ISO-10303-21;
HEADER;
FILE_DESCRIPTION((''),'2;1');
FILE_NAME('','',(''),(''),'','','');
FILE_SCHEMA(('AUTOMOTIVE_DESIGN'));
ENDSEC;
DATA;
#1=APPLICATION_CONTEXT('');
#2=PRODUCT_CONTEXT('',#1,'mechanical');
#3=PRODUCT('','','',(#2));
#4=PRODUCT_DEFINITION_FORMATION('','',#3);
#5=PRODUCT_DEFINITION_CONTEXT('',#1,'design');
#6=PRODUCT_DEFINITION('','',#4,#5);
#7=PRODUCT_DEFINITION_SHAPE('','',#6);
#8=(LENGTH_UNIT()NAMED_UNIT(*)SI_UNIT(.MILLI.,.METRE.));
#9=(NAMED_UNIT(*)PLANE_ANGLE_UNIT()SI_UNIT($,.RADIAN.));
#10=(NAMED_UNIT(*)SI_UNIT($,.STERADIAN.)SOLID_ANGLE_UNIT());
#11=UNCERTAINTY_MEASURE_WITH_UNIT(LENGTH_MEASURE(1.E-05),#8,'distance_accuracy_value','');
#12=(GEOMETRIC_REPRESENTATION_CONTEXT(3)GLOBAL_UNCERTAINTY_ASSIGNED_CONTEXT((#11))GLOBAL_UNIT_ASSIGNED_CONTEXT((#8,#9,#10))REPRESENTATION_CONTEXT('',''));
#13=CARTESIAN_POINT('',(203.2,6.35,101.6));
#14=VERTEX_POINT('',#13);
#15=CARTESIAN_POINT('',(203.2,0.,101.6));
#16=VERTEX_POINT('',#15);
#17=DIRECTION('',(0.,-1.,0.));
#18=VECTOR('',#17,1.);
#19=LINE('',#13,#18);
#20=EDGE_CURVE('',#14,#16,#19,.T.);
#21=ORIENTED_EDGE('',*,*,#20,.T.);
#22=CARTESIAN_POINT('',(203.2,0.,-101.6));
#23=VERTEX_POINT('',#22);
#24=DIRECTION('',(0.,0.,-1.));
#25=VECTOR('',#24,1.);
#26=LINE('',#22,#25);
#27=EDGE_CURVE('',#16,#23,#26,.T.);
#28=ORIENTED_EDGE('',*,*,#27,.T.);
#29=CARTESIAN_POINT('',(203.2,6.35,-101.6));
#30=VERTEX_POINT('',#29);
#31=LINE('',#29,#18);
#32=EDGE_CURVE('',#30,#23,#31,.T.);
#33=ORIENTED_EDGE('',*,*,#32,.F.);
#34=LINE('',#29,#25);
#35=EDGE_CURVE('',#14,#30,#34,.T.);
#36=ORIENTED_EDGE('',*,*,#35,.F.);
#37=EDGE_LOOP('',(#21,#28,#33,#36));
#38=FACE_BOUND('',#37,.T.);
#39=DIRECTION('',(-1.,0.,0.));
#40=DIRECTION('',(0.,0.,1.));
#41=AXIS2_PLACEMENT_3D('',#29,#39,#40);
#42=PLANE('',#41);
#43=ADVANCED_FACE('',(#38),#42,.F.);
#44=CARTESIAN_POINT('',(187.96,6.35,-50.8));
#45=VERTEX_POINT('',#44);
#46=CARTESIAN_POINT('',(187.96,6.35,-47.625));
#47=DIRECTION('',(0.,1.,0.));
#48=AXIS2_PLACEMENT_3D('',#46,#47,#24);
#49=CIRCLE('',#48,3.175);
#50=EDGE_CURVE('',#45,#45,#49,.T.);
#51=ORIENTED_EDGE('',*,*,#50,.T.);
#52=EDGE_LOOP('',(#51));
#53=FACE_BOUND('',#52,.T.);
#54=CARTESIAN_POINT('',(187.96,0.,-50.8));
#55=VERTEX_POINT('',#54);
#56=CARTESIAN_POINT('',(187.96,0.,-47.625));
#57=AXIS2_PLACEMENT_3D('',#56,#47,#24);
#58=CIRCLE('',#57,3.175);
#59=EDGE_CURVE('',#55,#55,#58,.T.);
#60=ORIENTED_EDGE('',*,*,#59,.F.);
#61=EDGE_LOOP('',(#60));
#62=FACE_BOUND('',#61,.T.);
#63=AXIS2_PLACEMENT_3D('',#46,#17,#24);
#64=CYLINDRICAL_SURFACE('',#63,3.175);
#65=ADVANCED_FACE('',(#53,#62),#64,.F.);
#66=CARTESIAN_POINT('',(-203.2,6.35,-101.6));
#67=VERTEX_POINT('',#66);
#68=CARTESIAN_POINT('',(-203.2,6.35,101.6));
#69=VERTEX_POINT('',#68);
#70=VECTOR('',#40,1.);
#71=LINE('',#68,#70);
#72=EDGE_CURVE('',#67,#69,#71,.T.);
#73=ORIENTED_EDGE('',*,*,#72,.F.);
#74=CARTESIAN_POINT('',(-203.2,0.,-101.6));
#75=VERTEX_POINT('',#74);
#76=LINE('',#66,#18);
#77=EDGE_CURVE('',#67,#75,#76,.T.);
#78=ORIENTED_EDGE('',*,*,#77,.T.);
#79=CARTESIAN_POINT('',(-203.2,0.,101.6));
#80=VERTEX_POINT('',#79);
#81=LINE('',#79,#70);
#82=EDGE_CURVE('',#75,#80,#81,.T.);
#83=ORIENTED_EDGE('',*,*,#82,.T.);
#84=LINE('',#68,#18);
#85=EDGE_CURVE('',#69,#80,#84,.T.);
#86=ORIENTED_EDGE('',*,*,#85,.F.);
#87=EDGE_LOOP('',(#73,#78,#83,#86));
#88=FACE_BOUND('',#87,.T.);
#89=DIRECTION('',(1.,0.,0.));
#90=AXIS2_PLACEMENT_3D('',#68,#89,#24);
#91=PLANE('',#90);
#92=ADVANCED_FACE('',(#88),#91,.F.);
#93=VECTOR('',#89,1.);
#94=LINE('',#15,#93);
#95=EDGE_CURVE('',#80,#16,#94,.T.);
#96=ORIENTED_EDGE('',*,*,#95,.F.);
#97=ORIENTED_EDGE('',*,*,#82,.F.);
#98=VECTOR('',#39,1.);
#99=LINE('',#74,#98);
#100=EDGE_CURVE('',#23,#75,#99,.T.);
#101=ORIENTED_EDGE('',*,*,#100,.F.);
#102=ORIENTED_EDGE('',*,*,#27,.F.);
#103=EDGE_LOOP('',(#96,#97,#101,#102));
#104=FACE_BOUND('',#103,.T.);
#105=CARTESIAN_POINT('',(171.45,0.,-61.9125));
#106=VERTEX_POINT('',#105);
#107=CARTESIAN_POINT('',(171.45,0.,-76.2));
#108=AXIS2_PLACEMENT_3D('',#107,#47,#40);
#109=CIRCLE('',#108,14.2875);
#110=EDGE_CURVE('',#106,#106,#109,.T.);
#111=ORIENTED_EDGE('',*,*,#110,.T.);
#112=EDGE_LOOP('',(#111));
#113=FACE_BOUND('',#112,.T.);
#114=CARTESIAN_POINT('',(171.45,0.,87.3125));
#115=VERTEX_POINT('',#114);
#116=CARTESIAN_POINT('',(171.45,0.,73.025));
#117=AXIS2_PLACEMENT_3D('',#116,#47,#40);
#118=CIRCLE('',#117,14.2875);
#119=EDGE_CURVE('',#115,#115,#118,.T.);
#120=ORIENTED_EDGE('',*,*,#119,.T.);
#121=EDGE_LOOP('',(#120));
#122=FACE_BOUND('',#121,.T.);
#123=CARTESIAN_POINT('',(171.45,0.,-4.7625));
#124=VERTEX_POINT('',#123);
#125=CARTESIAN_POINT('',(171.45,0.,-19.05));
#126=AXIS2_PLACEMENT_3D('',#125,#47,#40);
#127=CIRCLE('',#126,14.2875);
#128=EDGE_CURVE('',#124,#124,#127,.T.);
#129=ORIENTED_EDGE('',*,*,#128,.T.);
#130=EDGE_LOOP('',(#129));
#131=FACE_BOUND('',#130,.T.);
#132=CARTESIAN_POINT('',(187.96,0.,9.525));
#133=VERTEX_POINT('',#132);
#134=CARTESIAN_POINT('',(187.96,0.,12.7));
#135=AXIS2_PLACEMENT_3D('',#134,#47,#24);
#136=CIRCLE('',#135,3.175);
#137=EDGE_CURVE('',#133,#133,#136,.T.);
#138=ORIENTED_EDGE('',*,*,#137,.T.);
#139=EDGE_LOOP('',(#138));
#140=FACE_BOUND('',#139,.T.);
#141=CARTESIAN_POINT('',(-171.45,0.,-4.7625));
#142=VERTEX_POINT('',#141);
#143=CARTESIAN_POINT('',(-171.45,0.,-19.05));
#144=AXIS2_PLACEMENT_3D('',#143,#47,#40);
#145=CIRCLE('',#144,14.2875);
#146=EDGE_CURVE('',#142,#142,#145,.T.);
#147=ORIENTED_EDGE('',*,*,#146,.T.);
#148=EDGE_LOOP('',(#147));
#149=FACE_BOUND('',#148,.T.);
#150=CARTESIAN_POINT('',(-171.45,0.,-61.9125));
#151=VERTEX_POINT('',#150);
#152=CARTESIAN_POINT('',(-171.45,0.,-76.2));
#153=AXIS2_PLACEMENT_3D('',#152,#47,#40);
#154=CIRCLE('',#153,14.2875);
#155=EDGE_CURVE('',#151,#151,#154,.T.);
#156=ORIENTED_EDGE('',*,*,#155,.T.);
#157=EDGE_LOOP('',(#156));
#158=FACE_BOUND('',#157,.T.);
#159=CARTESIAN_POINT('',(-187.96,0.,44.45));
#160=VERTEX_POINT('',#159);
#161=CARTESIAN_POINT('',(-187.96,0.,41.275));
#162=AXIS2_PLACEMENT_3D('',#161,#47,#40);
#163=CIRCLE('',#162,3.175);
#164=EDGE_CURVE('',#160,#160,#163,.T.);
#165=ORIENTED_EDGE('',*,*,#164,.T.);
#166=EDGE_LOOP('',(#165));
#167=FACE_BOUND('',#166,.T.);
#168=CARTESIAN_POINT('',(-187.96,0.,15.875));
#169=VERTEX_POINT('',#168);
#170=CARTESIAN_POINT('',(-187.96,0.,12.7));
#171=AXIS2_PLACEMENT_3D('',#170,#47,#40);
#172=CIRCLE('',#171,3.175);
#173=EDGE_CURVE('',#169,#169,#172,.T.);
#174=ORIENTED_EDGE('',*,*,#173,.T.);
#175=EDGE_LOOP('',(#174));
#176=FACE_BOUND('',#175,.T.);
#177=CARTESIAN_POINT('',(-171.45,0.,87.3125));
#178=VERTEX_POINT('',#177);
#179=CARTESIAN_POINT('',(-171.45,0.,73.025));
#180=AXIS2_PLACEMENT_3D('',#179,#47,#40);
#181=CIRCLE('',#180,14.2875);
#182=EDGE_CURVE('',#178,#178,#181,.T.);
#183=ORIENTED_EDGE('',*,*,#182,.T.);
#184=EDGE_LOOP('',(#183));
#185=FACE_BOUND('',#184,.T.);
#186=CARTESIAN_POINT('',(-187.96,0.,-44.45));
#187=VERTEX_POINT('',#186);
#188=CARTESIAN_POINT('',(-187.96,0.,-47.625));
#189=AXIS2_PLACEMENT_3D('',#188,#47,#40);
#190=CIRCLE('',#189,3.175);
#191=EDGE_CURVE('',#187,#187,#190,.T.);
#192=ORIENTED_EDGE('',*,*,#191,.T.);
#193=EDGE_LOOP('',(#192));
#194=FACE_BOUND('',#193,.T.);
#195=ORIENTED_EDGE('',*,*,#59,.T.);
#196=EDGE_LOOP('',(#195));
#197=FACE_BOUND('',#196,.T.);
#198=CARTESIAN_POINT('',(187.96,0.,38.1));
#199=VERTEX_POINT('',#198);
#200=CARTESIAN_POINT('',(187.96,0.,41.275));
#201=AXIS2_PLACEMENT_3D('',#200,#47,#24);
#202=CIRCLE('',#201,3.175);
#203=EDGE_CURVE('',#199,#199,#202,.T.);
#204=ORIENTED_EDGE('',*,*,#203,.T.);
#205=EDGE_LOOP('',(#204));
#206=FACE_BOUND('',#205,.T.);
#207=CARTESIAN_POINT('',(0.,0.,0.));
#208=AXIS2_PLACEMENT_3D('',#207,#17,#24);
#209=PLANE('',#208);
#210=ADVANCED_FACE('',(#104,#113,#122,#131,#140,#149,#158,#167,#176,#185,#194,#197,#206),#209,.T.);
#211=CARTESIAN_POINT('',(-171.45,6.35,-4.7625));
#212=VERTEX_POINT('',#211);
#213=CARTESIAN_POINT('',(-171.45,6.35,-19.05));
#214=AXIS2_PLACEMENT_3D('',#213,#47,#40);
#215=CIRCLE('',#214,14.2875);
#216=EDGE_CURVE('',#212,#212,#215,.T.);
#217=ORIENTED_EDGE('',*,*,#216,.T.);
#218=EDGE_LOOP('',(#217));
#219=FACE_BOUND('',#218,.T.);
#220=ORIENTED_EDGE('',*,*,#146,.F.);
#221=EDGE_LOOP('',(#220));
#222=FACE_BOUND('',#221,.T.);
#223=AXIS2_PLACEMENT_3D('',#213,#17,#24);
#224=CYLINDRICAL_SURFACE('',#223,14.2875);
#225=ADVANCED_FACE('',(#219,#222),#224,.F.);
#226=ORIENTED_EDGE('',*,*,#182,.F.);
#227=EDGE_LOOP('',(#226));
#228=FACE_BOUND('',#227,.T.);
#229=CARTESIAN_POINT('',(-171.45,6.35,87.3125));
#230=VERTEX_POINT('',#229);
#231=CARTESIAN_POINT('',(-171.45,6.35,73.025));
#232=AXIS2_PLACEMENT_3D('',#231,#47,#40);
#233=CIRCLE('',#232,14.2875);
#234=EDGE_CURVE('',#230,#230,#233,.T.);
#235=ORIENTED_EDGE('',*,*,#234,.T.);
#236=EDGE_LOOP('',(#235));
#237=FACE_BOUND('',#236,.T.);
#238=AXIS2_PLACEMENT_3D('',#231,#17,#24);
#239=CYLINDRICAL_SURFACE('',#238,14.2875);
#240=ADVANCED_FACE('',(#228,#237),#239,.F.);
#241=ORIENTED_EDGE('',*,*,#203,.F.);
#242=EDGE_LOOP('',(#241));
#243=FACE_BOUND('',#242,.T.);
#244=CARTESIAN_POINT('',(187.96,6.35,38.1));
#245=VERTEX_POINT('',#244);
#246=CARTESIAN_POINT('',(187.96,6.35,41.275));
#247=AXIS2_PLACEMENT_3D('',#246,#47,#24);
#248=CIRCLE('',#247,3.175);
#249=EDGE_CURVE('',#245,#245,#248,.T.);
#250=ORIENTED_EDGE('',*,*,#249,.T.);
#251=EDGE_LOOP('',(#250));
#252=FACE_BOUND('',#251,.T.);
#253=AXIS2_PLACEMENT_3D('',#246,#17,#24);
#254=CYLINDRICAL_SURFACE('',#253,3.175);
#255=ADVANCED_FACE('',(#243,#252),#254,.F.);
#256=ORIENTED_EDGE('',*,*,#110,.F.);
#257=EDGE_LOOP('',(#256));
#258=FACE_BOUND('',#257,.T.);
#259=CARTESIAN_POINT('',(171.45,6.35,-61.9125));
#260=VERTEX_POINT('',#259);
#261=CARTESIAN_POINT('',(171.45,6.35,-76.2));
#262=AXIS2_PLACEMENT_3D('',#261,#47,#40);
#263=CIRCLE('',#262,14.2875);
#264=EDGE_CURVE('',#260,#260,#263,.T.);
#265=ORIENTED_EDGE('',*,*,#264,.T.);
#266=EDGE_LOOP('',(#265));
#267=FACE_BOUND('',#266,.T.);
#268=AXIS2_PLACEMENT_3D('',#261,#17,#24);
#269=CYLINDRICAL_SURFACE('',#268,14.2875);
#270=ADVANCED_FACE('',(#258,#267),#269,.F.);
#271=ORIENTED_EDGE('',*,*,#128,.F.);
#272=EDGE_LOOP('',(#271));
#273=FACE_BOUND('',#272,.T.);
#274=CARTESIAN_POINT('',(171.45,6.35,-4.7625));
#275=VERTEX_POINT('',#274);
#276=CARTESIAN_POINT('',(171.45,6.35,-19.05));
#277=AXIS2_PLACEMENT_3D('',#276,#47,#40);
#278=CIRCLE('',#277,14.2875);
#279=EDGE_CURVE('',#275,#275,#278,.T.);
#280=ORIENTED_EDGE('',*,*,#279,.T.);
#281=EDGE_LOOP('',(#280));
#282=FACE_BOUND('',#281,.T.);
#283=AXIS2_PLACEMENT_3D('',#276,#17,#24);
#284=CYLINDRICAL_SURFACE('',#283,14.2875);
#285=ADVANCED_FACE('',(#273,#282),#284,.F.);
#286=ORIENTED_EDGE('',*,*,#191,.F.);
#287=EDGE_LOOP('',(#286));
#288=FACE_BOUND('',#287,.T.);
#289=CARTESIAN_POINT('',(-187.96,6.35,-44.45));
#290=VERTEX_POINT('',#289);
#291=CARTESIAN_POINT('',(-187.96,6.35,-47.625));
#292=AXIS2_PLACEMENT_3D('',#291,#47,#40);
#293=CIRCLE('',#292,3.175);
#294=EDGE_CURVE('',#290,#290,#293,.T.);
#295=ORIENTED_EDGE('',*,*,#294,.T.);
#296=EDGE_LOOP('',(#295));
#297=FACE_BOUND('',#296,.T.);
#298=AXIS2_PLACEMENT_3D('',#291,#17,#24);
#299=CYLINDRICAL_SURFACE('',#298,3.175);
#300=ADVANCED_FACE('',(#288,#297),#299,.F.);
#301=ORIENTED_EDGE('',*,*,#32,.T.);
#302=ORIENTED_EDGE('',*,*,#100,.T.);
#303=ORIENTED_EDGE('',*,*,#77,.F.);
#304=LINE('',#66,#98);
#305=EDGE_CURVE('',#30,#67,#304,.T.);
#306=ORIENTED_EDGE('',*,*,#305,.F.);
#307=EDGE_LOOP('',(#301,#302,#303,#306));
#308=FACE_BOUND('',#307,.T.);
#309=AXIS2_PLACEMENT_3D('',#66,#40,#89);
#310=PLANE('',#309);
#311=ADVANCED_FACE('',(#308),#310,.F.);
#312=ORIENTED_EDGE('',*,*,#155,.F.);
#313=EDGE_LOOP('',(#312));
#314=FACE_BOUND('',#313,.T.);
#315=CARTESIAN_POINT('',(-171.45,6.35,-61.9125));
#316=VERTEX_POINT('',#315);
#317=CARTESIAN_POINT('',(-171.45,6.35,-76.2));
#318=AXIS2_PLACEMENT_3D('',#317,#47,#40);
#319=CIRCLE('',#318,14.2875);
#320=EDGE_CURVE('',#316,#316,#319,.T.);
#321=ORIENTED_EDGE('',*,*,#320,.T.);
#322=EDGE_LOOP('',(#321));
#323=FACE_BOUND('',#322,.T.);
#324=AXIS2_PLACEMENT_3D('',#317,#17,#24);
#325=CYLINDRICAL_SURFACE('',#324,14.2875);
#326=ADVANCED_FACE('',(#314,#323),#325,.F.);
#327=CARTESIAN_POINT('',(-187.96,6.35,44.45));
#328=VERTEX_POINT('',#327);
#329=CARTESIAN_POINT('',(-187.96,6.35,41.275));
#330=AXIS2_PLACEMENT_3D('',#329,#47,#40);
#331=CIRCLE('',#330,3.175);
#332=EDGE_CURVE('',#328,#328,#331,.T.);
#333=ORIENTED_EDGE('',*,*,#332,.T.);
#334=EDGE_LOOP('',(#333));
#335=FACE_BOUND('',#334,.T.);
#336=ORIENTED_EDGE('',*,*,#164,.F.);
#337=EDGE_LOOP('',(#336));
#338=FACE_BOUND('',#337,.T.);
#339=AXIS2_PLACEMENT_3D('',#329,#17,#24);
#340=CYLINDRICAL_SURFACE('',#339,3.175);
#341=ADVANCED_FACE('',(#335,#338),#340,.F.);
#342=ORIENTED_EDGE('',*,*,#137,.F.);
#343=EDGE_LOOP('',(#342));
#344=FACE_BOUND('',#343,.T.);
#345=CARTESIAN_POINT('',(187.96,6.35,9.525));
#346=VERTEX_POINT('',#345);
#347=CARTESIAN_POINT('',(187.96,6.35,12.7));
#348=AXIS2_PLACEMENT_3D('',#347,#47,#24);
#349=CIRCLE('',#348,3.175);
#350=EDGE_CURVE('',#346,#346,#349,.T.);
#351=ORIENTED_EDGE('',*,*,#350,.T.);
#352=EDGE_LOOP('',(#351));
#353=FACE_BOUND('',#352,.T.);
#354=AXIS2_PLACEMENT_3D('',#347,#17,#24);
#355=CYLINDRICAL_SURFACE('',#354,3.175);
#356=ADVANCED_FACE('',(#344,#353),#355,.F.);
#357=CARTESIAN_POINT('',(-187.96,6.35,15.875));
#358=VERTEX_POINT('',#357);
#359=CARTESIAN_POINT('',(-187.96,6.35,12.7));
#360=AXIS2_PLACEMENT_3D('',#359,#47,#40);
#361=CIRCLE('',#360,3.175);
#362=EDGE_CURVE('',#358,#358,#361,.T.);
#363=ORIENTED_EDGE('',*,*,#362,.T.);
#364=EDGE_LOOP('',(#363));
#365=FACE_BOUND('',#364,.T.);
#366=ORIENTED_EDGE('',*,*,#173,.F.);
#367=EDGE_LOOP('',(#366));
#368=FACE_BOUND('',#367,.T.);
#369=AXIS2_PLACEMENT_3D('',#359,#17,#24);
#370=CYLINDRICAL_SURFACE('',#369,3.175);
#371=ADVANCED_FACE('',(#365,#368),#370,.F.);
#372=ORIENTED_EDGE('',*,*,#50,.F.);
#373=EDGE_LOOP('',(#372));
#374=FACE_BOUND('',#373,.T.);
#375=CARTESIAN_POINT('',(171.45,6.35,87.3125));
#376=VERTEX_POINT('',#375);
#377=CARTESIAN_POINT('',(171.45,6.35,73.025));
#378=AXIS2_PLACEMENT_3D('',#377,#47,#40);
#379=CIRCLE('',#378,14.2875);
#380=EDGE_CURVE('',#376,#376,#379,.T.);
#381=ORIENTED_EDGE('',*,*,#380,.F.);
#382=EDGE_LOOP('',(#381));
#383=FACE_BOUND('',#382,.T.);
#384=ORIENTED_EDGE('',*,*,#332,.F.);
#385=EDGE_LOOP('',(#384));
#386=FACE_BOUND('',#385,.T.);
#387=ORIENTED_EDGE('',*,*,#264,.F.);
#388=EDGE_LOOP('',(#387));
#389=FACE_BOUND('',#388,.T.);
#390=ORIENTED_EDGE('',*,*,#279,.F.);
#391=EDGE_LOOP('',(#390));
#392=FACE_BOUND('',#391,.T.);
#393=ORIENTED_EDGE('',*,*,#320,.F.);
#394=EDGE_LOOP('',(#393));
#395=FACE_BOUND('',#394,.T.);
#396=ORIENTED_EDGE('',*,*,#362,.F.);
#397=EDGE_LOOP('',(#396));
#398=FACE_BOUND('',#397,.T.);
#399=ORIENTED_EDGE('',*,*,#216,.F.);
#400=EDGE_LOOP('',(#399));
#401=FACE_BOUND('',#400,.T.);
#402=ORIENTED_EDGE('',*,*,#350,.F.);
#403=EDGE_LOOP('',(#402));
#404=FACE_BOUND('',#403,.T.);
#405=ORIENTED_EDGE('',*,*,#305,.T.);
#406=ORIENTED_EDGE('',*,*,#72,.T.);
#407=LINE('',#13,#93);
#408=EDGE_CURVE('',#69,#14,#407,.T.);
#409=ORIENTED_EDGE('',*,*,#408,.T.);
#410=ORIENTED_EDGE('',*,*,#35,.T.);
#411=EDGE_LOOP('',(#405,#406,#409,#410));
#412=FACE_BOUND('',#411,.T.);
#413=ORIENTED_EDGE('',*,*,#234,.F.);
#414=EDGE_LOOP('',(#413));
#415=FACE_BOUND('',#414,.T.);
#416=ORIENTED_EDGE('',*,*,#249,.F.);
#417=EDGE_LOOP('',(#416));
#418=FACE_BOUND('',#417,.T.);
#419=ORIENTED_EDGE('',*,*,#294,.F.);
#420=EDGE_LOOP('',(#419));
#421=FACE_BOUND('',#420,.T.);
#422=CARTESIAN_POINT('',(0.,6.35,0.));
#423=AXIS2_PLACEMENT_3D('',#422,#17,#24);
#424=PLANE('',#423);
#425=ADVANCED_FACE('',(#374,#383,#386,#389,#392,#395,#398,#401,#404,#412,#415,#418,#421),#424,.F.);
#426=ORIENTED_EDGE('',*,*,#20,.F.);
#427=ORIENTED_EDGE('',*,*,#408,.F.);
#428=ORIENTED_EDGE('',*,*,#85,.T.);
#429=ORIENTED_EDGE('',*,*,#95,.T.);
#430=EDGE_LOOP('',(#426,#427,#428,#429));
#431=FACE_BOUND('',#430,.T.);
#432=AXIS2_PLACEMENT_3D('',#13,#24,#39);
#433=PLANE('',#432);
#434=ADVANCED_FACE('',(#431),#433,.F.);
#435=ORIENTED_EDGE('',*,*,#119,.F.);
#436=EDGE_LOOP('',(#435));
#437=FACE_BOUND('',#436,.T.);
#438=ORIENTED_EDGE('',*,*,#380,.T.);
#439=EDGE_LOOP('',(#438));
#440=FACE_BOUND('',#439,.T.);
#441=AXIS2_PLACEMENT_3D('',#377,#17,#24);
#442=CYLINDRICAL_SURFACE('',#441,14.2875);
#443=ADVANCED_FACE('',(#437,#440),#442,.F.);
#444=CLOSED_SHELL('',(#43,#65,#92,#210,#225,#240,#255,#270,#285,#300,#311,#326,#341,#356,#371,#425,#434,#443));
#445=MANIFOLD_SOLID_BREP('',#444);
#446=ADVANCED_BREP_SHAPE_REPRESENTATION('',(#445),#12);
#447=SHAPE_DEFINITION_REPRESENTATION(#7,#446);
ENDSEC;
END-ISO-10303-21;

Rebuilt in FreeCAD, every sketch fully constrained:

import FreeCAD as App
import Part
import Sketcher
from FreeCAD import Vector
Q = App.Units.Quantity

doc = App.newDocument("Part")
params = doc.addObject("Spreadsheet::Sheet", "Params")
for row, (alias, value) in enumerate([
    ("sketch1_diameter", "0.25 in"),
    ("sketch1_width", "16 in"),
    ("sketch1_height", "8 in"),
    ("sketch1_diameter2", "1.125 in"),
    ("pad1_length", "0.25 in"),
], start=1):
    params.set(f"A{row}", alias)
    params.set(f"B{row}", "=" + value)
    params.setAlias(f"B{row}", alias)

body = doc.addObject("PartDesign::Body", "Body")

# Sketch on XZ plane
sketch1 = body.newObject("Sketcher::SketchObject", "Sketch")
sketch1.AttachmentSupport = (doc.getObject("XZ_Plane"), [""])
sketch1.MapMode = "FlatFace"
sketch1.addGeometry([
    Part.LineSegment(Vector(-203.2, -101.6, 0), Vector(-203.2, 101.6, 0)),  # 0
    Part.LineSegment(Vector(-203.2, 101.6, 0), Vector(203.2, 101.6, 0)),  # 1
    Part.LineSegment(Vector(203.2, 101.6, 0), Vector(203.2, -101.6, 0)),  # 2
    Part.LineSegment(Vector(203.2, -101.6, 0), Vector(-203.2, -101.6, 0)),  # 3
    Part.Circle(Vector(-171.45, 73.025, 0), Vector(0, 0, 1), 14.2875),  # 4
    Part.Circle(Vector(-187.96, 41.275, 0), Vector(0, 0, 1), 3.175),  # 5
    Part.Circle(Vector(-187.96, 12.7, 0), Vector(0, 0, 1), 3.175),  # 6
    Part.Circle(Vector(171.45, 73.025, 0), Vector(0, 0, 1), 14.2875),  # 7
    Part.Circle(Vector(187.96, 41.275, 0), Vector(0, 0, 1), 3.175),  # 8
    Part.Circle(Vector(187.96, 12.7, 0), Vector(0, 0, 1), 3.175),  # 9
    Part.Circle(Vector(-171.45, -19.05, 0), Vector(0, 0, 1), 14.2875),  # 10
    Part.Circle(Vector(-187.96, -47.625, 0), Vector(0, 0, 1), 3.175),  # 11
    Part.Circle(Vector(-171.45, -76.2, 0), Vector(0, 0, 1), 14.2875),  # 12
    Part.Circle(Vector(171.45, -19.05, 0), Vector(0, 0, 1), 14.2875),  # 13
    Part.Circle(Vector(187.96, -47.625, 0), Vector(0, 0, 1), 3.175),  # 14
    Part.Circle(Vector(171.45, -76.2, 0), Vector(0, 0, 1), 14.2875),  # 15
], False)
sketch1.addConstraint([
    Sketcher.Constraint("Coincident", 0, 2, 1, 1),
    Sketcher.Constraint("Coincident", 1, 2, 2, 1),
    Sketcher.Constraint("Coincident", 2, 2, 3, 1),
    Sketcher.Constraint("Coincident", 3, 2, 0, 1),
    Sketcher.Constraint("Vertical", 0),
    Sketcher.Constraint("Horizontal", 1),
    Sketcher.Constraint("Vertical", 2),
    Sketcher.Constraint("Horizontal", 3),
    Sketcher.Constraint("Equal", 5, 6),
    Sketcher.Constraint("Equal", 4, 7),
    Sketcher.Constraint("Equal", 6, 8),
    Sketcher.Constraint("Equal", 8, 9),
    Sketcher.Constraint("Equal", 7, 10),
    Sketcher.Constraint("Equal", 9, 11),
    Sketcher.Constraint("Equal", 10, 12),
    Sketcher.Constraint("Equal", 12, 13),
    Sketcher.Constraint("Equal", 11, 14),
    Sketcher.Constraint("Equal", 13, 15),
    Sketcher.Constraint("Symmetric", 0, 2, 2, 2, -1, 1),
    Sketcher.Constraint("Symmetric", 4, 3, 7, 3, -2),
    Sketcher.Constraint("Symmetric", 5, 3, 8, 3, -2),
    Sketcher.Constraint("Symmetric", 6, 3, 9, 3, -2),
    Sketcher.Constraint("Symmetric", 10, 3, 13, 3, -2),
    Sketcher.Constraint("Symmetric", 11, 3, 14, 3, -2),
    Sketcher.Constraint("Symmetric", 12, 3, 15, 3, -2),
    Sketcher.Constraint("Vertical", 5, 3, 6, 3),
    Sketcher.Constraint("Vertical", 4, 3, 10, 3),
    Sketcher.Constraint("Vertical", 6, 3, 11, 3),
    Sketcher.Constraint("Vertical", 10, 3, 12, 3),
    Sketcher.Constraint("Diameter", 5, Q("0.25 in")),
    Sketcher.Constraint("DistanceX", 1, 1, 1, 2, Q("16 in")),
    Sketcher.Constraint("DistanceY", 0, 1, 0, 2, Q("8 in")),
    Sketcher.Constraint("Diameter", 4, Q("1.125 in")),
    Sketcher.Constraint("DistanceY", 12, 3, -1, 1, Q("3 in")),
    Sketcher.Constraint("DistanceX", 5, 3, -1, 1, Q("7.4 in")),
    Sketcher.Constraint("DistanceY", -1, 1, 6, 3, Q("0.5 in")),
    Sketcher.Constraint("DistanceX", 4, 3, 7, 3, Q("13.5 in")),
    Sketcher.Constraint("DistanceY", 11, 3, 5, 3, Q("3.5 in")),
    Sketcher.Constraint("DistanceY", 10, 3, -1, 1, Q("0.75 in")),
    Sketcher.Constraint("DistanceY", 5, 3, 4, 3, Q("1.25 in")),
    Sketcher.Constraint("DistanceY", -1, 1, 4, 3, Q("2.875 in")),
])
sketch1.setExpression("Constraints[29]", "Params.sketch1_diameter")
sketch1.setExpression("Constraints[30]", "Params.sketch1_width")
sketch1.setExpression("Constraints[31]", "Params.sketch1_height")
sketch1.setExpression("Constraints[32]", "Params.sketch1_diameter2")
pad1 = body.newObject("PartDesign::Pad", "Pad")
pad1.Profile = sketch1
pad1.setExpression("Length", "Params.pad1_length")
pad1.Reversed = True

doc.recompute()
